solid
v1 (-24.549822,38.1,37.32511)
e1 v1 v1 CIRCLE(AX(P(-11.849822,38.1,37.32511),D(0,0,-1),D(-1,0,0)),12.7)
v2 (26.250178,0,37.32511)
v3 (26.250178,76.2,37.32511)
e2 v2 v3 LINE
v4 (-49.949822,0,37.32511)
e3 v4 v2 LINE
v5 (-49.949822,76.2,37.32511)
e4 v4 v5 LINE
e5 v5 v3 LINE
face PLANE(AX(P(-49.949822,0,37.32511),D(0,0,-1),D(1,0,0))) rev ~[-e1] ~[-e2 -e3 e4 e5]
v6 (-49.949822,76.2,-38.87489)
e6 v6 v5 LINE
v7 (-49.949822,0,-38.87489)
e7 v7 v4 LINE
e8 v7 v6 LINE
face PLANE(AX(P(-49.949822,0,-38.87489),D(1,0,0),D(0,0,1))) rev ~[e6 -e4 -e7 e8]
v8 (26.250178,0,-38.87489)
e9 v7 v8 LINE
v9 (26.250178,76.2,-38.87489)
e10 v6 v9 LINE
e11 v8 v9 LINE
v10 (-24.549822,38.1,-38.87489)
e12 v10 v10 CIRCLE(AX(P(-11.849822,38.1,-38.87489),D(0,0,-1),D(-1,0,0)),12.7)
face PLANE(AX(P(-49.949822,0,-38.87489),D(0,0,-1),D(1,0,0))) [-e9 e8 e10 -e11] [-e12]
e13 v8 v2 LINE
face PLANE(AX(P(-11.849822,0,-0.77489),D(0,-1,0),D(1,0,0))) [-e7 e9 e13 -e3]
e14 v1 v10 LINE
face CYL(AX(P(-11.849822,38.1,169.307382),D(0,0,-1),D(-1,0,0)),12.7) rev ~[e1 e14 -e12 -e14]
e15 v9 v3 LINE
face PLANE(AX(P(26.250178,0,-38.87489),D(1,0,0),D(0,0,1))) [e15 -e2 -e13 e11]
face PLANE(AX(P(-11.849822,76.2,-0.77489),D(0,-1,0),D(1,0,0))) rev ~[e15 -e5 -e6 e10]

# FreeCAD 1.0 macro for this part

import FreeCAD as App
import Part
import Sketcher

V = App.Vector
Q = App.Units.Quantity


def add_polygon(sketch, points):
    """Adds a closed chain of lines whose ends are joined by coincident constraints."""
    first, n = sketch.GeometryCount, len(points)
    for a, b in zip(points, points[1:] + points[:1]):
        sketch.addGeometry(Part.LineSegment(App.Vector(*a, 0), App.Vector(*b, 0)), False)
    for i in range(n):
        sketch.addConstraint(Sketcher.Constraint("Coincident", first + i, 2, first + (i + 1) % n, 1))

doc = App.newDocument("Part")
body = doc.addObject("PartDesign::Body", "Body")

# Sketch on XZ plane
sketch1 = doc.addObject("Sketcher::SketchObject", "Sketch")
body.addObject(sketch1)
sketch1.AttachmentSupport = (doc.XZ_Plane, [""])
sketch1.MapMode = "FlatFace"
add_polygon(sketch1, [(-50, 37), (-50, -39), (26, -39), (26, 37)])  # lines 0-3
sketch1.addConstraint(Sketcher.Constraint("Vertical", 0))
sketch1.addConstraint(Sketcher.Constraint("Horizontal", 1))
sketch1.addConstraint(Sketcher.Constraint("Vertical", 2))
sketch1.addConstraint(Sketcher.Constraint("Horizontal", 3))
sketch1.addConstraint(Sketcher.Constraint("Equal", 3, 0))
sketch1.addConstraint(Sketcher.Constraint("DistanceX", 1, 1, 1, 2, Q("3 in")))
sketch1.addConstraint(Sketcher.Constraint("DistanceX", 0, 2, -1, 1, Q("49.949822 mm")))
sketch1.addConstraint(Sketcher.Constraint("DistanceY", 0, 2, -1, 1, Q("38.87489 mm")))
pad1 = doc.addObject("PartDesign::Pad", "Pad")
body.addObject(pad1)
pad1.Profile = sketch1
pad1.Length = Q("3 in")
pad1.Reversed = True

# Sketch on XY plane
sketch2 = doc.addObject("Sketcher::SketchObject", "Sketch001")
body.addObject(sketch2)
sketch2.AttachmentSupport = (doc.XY_Plane, [""])
sketch2.MapMode = "FlatFace"
sketch2.AttachmentOffset = App.Placement(V(0, 0, 37.32511), App.Rotation())
sketch2.addGeometry(Part.Circle(V(-12, 38, 0), V(0, 0, 1), 13), False)
sketch2.addConstraint(Sketcher.Constraint("Diameter", 0, Q("1 in")))
sketch2.addConstraint(Sketcher.Constraint("DistanceY", -1, 1, 0, 3, Q("1.5 in")))
sketch2.addConstraint(Sketcher.Constraint("DistanceX", 0, 3, -1, 1, Q("11.849822 mm")))
doc.recompute()
hole = doc.addObject("PartDesign::Hole", "Hole")
body.addObject(hole)
hole.Profile = sketch2
hole.ThreadType = "None"
hole.Diameter = Q("1 in")
hole.DepthType = "ThroughAll"

doc.recompute()
